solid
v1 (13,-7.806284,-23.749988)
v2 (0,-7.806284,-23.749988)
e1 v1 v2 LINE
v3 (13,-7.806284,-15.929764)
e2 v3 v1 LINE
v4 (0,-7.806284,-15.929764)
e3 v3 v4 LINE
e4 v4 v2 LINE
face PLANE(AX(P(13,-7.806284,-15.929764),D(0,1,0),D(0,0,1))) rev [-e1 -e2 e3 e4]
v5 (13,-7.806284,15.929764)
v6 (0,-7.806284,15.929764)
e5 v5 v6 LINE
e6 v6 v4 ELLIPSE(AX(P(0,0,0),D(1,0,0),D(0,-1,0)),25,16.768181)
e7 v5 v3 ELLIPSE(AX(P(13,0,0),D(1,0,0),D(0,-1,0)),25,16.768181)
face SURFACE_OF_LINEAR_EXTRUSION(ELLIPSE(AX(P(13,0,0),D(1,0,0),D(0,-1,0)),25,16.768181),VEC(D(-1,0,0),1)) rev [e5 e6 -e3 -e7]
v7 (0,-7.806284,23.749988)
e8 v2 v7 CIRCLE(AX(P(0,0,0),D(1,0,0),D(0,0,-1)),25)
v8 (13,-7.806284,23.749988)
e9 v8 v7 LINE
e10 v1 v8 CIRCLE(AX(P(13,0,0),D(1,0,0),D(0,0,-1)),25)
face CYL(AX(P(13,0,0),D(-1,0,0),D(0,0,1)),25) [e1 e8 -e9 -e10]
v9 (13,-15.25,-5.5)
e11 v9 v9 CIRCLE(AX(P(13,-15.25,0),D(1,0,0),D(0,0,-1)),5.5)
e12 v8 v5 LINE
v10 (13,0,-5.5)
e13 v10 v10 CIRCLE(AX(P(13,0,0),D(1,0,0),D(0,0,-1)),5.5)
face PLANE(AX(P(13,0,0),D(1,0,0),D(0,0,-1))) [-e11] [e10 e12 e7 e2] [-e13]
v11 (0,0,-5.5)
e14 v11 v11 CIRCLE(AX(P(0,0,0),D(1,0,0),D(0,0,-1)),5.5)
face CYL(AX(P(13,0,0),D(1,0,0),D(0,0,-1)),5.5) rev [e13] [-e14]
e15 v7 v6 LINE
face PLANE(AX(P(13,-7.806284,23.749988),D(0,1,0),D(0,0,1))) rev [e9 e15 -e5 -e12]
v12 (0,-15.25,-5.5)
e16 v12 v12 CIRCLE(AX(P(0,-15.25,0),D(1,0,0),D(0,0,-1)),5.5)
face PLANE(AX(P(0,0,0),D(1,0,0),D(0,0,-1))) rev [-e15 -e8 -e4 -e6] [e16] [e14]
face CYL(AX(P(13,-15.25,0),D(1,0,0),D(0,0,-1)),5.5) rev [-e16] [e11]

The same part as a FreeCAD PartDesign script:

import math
import FreeCAD as App
import Part
import Sketcher
Q = App.Units.Quantity

doc = App.newDocument("Part")
body = doc.addObject("PartDesign::Body", "Body")

# Sketch on YZ plane
sketch1 = body.newObject("Sketcher::SketchObject", "Sketch")
sketch1.AttachmentSupport = (doc.getObject("YZ_Plane"), [""])
sketch1.MapMode = "FlatFace"
sketch1.addGeometry([
    Part.LineSegment(App.Vector(-7.806284, 23.749988, 0), App.Vector(-7.806284, 15.929764, 0)),
    Part.BSplineCurve([App.Vector(-7.806284, 15.929764, 0), App.Vector(-80.063705, 0, 0), App.Vector(-7.806284, -15.929764, 0)], [3, 3], [5.029950938, 7.536419676], False, 2, [1, 0.312251352, 1], False),
    Part.LineSegment(App.Vector(-7.806284, -15.929764, 0), App.Vector(-7.806284, -23.749988, 0)),
    Part.ArcOfCircle(Part.Circle(App.Vector(0, 0, 0), App.Vector(0, 0, 1), 25), math.radians(-108.19496), math.radians(108.19496)),
], False)
sketch1.addConstraint([
    Sketcher.Constraint("Block", 1),
    Sketcher.Constraint("Coincident", 0, 2, 1, 1),
    Sketcher.Constraint("Coincident", 1, 2, 2, 1),
    Sketcher.Constraint("Coincident", 2, 2, 3, 1),
    Sketcher.Constraint("Coincident", 3, 2, 0, 1),
    Sketcher.Constraint("Vertical", 0),
    Sketcher.Constraint("Vertical", 2),
    Sketcher.Constraint("Coincident", 3, 3, -1, 1),
    Sketcher.Constraint("Radius", 3, Q("25 mm")),
])
pad1 = body.newObject("PartDesign::Pad", "Pad")
pad1.Profile = sketch1
pad1.Length = 13

# Sketch on YZ plane
sketch2 = body.newObject("Sketcher::SketchObject", "Sketch001")
sketch2.AttachmentSupport = (doc.getObject("YZ_Plane"), [""])
sketch2.MapMode = "FlatFace"
sketch2.addGeometry(Part.Circle(App.Vector(0, 0, 0), App.Vector(0, 0, 1), 5.5), False)
sketch2.addConstraint([
    Sketcher.Constraint("Coincident", 0, 3, -1, 1),
    Sketcher.Constraint("Diameter", 0, Q("11 mm")),
])
doc.recompute()
hole = body.newObject("PartDesign::Hole", "Hole")
hole.Profile = sketch2
hole.ThreadType = "None"
hole.Diameter = 11
hole.DepthType = "ThroughAll"
hole.Reversed = True

# Sketch on YZ plane
sketch3 = body.newObject("Sketcher::SketchObject", "Sketch002")
sketch3.AttachmentSupport = (doc.getObject("YZ_Plane"), [""])
sketch3.MapMode = "FlatFace"
sketch3.AttachmentOffset = App.Placement(App.Vector(0, 0, 13), App.Rotation())
sketch3.addGeometry(Part.Circle(App.Vector(0, 0, 0), App.Vector(0, 0, 1), 5.5), False)
sketch3.addConstraint([
    Sketcher.Constraint("Coincident", 0, 3, -1, 1),
    Sketcher.Constraint("Diameter", 0, Q("11 mm")),
])
doc.recompute()
hole2 = body.newObject("PartDesign::Hole", "Hole001")
hole2.Profile = sketch3
hole2.ThreadType = "None"
hole2.Diameter = 11
hole2.DepthType = "ThroughAll"

# Sketch on YZ plane
sketch4 = body.newObject("Sketcher::SketchObject", "Sketch003")
sketch4.AttachmentSupport = (doc.getObject("YZ_Plane"), [""])
sketch4.MapMode = "FlatFace"
sketch4.AttachmentOffset = App.Placement(App.Vector(0, 0, 13), App.Rotation())
sketch4.addGeometry(Part.Circle(App.Vector(-15.25, 0, 0), App.Vector(0, 0, 1), 5.5), False)
sketch4.addConstraint([
    Sketcher.Constraint("PointOnObject", 0, 3, -1),
    Sketcher.Constraint("Diameter", 0, Q("11 mm")),
    Sketcher.Constraint("DistanceX", 0, 3, -1, 1, Q("15.25 mm")),
])
doc.recompute()
hole3 = body.newObject("PartDesign::Hole", "Hole002")
hole3.Profile = sketch4
hole3.ThreadType = "None"
hole3.Diameter = 11
hole3.DepthType = "ThroughAll"

doc.recompute()
